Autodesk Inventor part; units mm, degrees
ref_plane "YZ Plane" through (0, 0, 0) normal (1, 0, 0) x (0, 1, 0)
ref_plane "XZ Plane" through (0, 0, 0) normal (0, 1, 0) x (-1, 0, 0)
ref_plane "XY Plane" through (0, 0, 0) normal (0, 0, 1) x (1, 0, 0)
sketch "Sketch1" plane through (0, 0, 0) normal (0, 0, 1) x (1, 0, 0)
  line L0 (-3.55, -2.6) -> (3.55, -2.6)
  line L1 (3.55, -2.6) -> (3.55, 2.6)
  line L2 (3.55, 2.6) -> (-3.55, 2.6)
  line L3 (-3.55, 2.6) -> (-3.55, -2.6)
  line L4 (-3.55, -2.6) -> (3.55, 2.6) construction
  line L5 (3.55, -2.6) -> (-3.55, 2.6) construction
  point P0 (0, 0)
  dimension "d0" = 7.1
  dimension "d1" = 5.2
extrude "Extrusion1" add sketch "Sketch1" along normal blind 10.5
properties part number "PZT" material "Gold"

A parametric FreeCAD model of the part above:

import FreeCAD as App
import Part
import Sketcher
from FreeCAD import Vector


def add_polygon(sketch, points):
    """Adds a closed chain of lines whose ends are joined by coincident constraints."""
    first, n = sketch.GeometryCount, len(points)
    for a, b in zip(points, points[1:] + points[:1]):
        sketch.addGeometry(Part.LineSegment(App.Vector(*a, 0), App.Vector(*b, 0)), False)
    for i in range(n):
        sketch.addConstraint(Sketcher.Constraint("Coincident", first + i, 2, first + (i + 1) % n, 1))

doc = App.newDocument("Part")
body = doc.addObject("PartDesign::Body", "Body")

sketch1 = doc.addObject("Sketcher::SketchObject", "Sketch")
body.addObject(sketch1)
sketch1.AttachmentSupport = (doc.XY_Plane, [""])
sketch1.MapMode = "FlatFace"
add_polygon(sketch1, [(-4, 3), (-4, -3), (4, -3), (4, 3)])
sketch1.addConstraint([
    Sketcher.Constraint("Vertical", 0),
    Sketcher.Constraint("Horizontal", 1),
    Sketcher.Constraint("Vertical", 2),
    Sketcher.Constraint("Horizontal", 3),
    Sketcher.Constraint("Symmetric", 0, 2, 2, 2, -1, 1),
    Sketcher.Constraint("DistanceX", 1, 1, 1, 2, 7.1),
    Sketcher.Constraint("DistanceY", 0, 2, 0, 1, 5.2),
])
pad1 = doc.addObject("PartDesign::Pad", "Pad")
body.addObject(pad1)
pad1.Profile = sketch1
pad1.Length = 10.5

doc.recompute()
